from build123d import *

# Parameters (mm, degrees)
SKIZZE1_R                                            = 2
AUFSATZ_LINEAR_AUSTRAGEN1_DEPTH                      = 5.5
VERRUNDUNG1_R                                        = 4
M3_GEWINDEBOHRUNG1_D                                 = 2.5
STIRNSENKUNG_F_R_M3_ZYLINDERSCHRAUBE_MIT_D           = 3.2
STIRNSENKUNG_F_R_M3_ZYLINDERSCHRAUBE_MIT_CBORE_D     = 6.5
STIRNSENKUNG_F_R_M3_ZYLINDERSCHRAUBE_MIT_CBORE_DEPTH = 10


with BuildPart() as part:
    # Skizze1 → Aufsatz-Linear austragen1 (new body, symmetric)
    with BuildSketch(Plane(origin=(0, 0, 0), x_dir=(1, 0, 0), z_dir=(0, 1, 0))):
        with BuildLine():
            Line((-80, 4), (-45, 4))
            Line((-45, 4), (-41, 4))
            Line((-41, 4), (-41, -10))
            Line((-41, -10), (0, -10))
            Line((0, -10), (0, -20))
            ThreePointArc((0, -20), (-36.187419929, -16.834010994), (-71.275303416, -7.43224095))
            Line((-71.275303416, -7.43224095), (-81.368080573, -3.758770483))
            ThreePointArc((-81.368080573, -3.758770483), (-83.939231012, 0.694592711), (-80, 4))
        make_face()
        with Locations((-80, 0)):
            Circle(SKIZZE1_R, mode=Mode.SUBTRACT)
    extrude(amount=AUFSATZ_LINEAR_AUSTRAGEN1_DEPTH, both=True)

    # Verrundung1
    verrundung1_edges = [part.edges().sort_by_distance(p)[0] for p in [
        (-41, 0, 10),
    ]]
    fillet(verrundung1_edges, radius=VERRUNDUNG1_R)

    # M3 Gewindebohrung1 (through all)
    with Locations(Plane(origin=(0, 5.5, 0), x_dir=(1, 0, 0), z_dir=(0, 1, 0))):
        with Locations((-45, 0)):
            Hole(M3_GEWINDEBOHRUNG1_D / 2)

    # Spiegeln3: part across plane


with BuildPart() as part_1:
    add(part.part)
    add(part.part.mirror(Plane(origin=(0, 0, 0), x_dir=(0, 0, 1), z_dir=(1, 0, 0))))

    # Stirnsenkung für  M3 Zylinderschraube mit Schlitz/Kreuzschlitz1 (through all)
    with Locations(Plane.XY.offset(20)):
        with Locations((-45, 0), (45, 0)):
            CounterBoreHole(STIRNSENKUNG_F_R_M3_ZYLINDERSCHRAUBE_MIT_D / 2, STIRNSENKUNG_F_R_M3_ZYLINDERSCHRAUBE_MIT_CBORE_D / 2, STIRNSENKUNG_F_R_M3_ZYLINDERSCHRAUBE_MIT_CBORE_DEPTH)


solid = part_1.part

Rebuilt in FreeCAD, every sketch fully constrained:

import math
import FreeCAD as App
import Part
import Sketcher
from FreeCAD import Vector
Q = App.Units.Quantity


def edges_at(feature, points):
    """Names of the edges that pass closest to the given points."""
    edges = feature.Shape.Edges
    near = lambda p: min(range(len(edges)), key=lambda i: edges[i].distToShape(Part.Vertex(*p))[0])
    return sorted({f"Edge{near(p) + 1}" for p in points})

doc = App.newDocument("Part")
body = doc.addObject("PartDesign::Body", "Body")

sketch1 = doc.addObject("Sketcher::SketchObject", "Sketch")
body.addObject(sketch1)
sketch1.AttachmentSupport = (doc.XZ_Plane, [""])
sketch1.MapMode = "FlatFace"
sketch1.addGeometry([
    Part.LineSegment(Vector(-41, -4, 0), Vector(-80, -4, 0)),
    Part.ArcOfCircle(Part.Circle(Vector(-80, 0, 0), Vector(0, 0, 1), 4), math.radians(110), math.radians(270)),
    Part.LineSegment(Vector(-81.368081, 3.75877, 0), Vector(-71.275303, 7.432241, 0)),
    Part.ArcOfCircle(Part.Circle(Vector(0, -188.395046, 0), Vector(0, 0, 1), 208.395046), math.radians(90), math.radians(110)),
    Part.LineSegment(Vector(0, 20, 0), Vector(0, 10, 0)),
    Part.LineSegment(Vector(0, 10, 0), Vector(-41, 10, 0)),
    Part.LineSegment(Vector(-41, 10, 0), Vector(-41, -4, 0)),
    Part.Circle(Vector(-80, 0, 0), Vector(0, 0, 1), 2),
], False)
sketch1.addConstraint([
    Sketcher.Constraint("Tangent", 0, 2, 1, 2),
    Sketcher.Constraint("Tangent", 1, 1, 2, 1),
    Sketcher.Constraint("Tangent", 2, 2, 3, 2),
    Sketcher.Constraint("Coincident", 3, 1, 4, 1),
    Sketcher.Constraint("Coincident", 4, 2, 5, 1),
    Sketcher.Constraint("Coincident", 5, 2, 6, 1),
    Sketcher.Constraint("Coincident", 6, 2, 0, 1),
    Sketcher.Constraint("Horizontal", 0),
    Sketcher.Constraint("Vertical", 4),
    Sketcher.Constraint("Horizontal", 5),
    Sketcher.Constraint("Vertical", 6),
    Sketcher.Constraint("Coincident", 7, 3, 1, 3),
    Sketcher.Constraint("PointOnObject", 1, 3, -1),
    Sketcher.Constraint("PointOnObject", 3, 3, -2),
    Sketcher.Constraint("PointOnObject", 3, 1, -2),
    Sketcher.Constraint("Diameter", 7, Q("4 mm")),
    Sketcher.Constraint("Radius", 1, Q("4 mm")),
    Sketcher.Constraint("DistanceX", 0, 2, 0, 1, Q("39 mm")),
    Sketcher.Constraint("DistanceX", 5, 2, 5, 1, Q("41 mm")),
    Sketcher.Constraint("DistanceY", 4, 2, 4, 1, Q("10 mm")),
    Sketcher.Constraint("DistanceY", 6, 2, 6, 1, Q("14 mm")),
    Sketcher.Constraint("Angle", 2, Q("20 deg")),
])
pad1 = doc.addObject("PartDesign::Pad", "Pad")
body.addObject(pad1)
pad1.Profile = sketch1
pad1.Length = 11
pad1.Midplane = True
doc.recompute()

fillet = doc.addObject("PartDesign::Fillet", "Fillet")
body.addObject(fillet)
fillet.Base = (pad1, edges_at(pad1, [(-41, 0, 10)]))
fillet.Radius = 4

sketch2 = doc.addObject("Sketcher::SketchObject", "Sketch001")
body.addObject(sketch2)
sketch2.AttachmentSupport = (doc.XZ_Plane, [""])
sketch2.MapMode = "FlatFace"
sketch2.AttachmentOffset = App.Placement(Vector(0, 0, -5.5), App.Rotation())
sketch2.addGeometry(Part.Circle(Vector(-45, 0, 0), Vector(0, 0, 1), 1.25), False)
sketch2.addConstraint([
    Sketcher.Constraint("PointOnObject", 0, 3, -1),
    Sketcher.Constraint("Diameter", 0, Q("2.5 mm")),
    Sketcher.Constraint("DistanceX", 0, 3, -1, 1, Q("45 mm")),
])
doc.recompute()
hole = doc.addObject("PartDesign::Hole", "Hole")
body.addObject(hole)
hole.Profile = sketch2
hole.ThreadType = "None"
hole.Diameter = 2.5
hole.DepthType = "ThroughAll"
hole.Reversed = True
body2 = doc.addObject("PartDesign::Body", "Body001")
doc.recompute()

body2.BaseFeature = body
doc.recompute()

mirroring = doc.addObject("Part::Mirroring", "Mirroring")
mirroring.Source = body
mirroring.Base = Vector(0, 0, 0)
mirroring.Normal = Vector(1, 0, 0)
body3 = doc.addObject("PartDesign::Body", "Body002")
body3.BaseFeature = mirroring
boolean = doc.addObject("PartDesign::Boolean", "Boolean")
body2.addObject(boolean)
boolean.Type = "Fuse"
boolean.addObjects([body3])
doc.recompute()

sketch3 = doc.addObject("Sketcher::SketchObject", "Sketch002")
body2.addObject(sketch3)
sketch3.AttachmentSupport = (doc.getObject("XY_Plane001"), [""])
sketch3.MapMode = "FlatFace"
sketch3.AttachmentOffset = App.Placement(Vector(0, 0, 20), App.Rotation())
sketch3.addGeometry([
    Part.Circle(Vector(-45, 0, 0), Vector(0, 0, 1), 1.6),
    Part.Circle(Vector(45, 0, 0), Vector(0, 0, 1), 1.6),
], False)
sketch3.addConstraint([
    Sketcher.Constraint("Equal", 0, 1),
    Sketcher.Constraint("Symmetric", 0, 3, 1, 3, -1, 1),
    Sketcher.Constraint("PointOnObject", 0, 3, -1),
    Sketcher.Constraint("Diameter", 0, Q("3.2 mm")),
    Sketcher.Constraint("DistanceX", 0, 3, -1, 1, Q("45 mm")),
])
doc.recompute()
hole2 = doc.addObject("PartDesign::Hole", "Hole001")
body2.addObject(hole2)
hole2.Profile = sketch3
hole2.ThreadType = "None"
hole2.Diameter = 3.2
hole2.DepthType = "ThroughAll"
hole2.HoleCutType = "Counterbore"
hole2.HoleCutDiameter = 6.5
hole2.HoleCutDepth = 10
mirroring.Visibility = False

doc.recompute()
